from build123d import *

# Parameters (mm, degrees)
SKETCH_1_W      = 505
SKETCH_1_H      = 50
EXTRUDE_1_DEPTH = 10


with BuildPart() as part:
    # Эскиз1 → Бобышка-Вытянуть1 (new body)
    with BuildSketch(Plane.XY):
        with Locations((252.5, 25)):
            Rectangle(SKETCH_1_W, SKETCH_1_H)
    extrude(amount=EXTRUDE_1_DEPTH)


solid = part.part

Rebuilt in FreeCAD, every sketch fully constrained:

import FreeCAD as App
import Part
import Sketcher
from FreeCAD import Vector
Q = App.Units.Quantity


def add_polygon(sketch, points):
    """Adds a closed chain of lines whose ends are joined by coincident constraints."""
    first, n = sketch.GeometryCount, len(points)
    for a, b in zip(points, points[1:] + points[:1]):
        sketch.addGeometry(Part.LineSegment(App.Vector(*a, 0), App.Vector(*b, 0)), False)
    for i in range(n):
        sketch.addConstraint(Sketcher.Constraint("Coincident", first + i, 2, first + (i + 1) % n, 1))

doc = App.newDocument("Part")
params = doc.addObject("Spreadsheet::Sheet", "Params")
for row, (alias, value) in enumerate([
    ("sketch1_width", "505 mm"),
    ("sketch1_height", "50 mm"),
    ("pad1_length", "10 mm"),
], start=1):
    params.set(f"A{row}", alias)
    params.set(f"B{row}", "=" + value)
    params.setAlias(f"B{row}", alias)

body = doc.addObject("PartDesign::Body", "Body")

sketch1 = body.newObject("Sketcher::SketchObject", "Sketch")
sketch1.AttachmentSupport = (doc.getObject("XY_Plane"), [""])
sketch1.MapMode = "FlatFace"
add_polygon(sketch1, [(0, 50), (0, 0), (505, 0), (505, 50)])
sketch1.addConstraint(Sketcher.Constraint("Vertical", 0))
sketch1.addConstraint(Sketcher.Constraint("Horizontal", 1))
sketch1.addConstraint(Sketcher.Constraint("Vertical", 2))
sketch1.addConstraint(Sketcher.Constraint("Horizontal", 3))
sketch1.addConstraint(Sketcher.Constraint("Coincident", 0, 2, -1, 1))
sketch1.addConstraint(Sketcher.Constraint("DistanceX", 1, 1, 1, 2, Q("505 mm")))
sketch1.addConstraint(Sketcher.Constraint("DistanceY", 0, 2, 0, 1, Q("50 mm")))
sketch1.setExpression("Constraints[9]", "Params.sketch1_width")
sketch1.setExpression("Constraints[10]", "Params.sketch1_height")
pad1 = body.newObject("PartDesign::Pad", "Pad")
pad1.Profile = sketch1
pad1.setExpression("Length", "Params.pad1_length")

doc.recompute()
